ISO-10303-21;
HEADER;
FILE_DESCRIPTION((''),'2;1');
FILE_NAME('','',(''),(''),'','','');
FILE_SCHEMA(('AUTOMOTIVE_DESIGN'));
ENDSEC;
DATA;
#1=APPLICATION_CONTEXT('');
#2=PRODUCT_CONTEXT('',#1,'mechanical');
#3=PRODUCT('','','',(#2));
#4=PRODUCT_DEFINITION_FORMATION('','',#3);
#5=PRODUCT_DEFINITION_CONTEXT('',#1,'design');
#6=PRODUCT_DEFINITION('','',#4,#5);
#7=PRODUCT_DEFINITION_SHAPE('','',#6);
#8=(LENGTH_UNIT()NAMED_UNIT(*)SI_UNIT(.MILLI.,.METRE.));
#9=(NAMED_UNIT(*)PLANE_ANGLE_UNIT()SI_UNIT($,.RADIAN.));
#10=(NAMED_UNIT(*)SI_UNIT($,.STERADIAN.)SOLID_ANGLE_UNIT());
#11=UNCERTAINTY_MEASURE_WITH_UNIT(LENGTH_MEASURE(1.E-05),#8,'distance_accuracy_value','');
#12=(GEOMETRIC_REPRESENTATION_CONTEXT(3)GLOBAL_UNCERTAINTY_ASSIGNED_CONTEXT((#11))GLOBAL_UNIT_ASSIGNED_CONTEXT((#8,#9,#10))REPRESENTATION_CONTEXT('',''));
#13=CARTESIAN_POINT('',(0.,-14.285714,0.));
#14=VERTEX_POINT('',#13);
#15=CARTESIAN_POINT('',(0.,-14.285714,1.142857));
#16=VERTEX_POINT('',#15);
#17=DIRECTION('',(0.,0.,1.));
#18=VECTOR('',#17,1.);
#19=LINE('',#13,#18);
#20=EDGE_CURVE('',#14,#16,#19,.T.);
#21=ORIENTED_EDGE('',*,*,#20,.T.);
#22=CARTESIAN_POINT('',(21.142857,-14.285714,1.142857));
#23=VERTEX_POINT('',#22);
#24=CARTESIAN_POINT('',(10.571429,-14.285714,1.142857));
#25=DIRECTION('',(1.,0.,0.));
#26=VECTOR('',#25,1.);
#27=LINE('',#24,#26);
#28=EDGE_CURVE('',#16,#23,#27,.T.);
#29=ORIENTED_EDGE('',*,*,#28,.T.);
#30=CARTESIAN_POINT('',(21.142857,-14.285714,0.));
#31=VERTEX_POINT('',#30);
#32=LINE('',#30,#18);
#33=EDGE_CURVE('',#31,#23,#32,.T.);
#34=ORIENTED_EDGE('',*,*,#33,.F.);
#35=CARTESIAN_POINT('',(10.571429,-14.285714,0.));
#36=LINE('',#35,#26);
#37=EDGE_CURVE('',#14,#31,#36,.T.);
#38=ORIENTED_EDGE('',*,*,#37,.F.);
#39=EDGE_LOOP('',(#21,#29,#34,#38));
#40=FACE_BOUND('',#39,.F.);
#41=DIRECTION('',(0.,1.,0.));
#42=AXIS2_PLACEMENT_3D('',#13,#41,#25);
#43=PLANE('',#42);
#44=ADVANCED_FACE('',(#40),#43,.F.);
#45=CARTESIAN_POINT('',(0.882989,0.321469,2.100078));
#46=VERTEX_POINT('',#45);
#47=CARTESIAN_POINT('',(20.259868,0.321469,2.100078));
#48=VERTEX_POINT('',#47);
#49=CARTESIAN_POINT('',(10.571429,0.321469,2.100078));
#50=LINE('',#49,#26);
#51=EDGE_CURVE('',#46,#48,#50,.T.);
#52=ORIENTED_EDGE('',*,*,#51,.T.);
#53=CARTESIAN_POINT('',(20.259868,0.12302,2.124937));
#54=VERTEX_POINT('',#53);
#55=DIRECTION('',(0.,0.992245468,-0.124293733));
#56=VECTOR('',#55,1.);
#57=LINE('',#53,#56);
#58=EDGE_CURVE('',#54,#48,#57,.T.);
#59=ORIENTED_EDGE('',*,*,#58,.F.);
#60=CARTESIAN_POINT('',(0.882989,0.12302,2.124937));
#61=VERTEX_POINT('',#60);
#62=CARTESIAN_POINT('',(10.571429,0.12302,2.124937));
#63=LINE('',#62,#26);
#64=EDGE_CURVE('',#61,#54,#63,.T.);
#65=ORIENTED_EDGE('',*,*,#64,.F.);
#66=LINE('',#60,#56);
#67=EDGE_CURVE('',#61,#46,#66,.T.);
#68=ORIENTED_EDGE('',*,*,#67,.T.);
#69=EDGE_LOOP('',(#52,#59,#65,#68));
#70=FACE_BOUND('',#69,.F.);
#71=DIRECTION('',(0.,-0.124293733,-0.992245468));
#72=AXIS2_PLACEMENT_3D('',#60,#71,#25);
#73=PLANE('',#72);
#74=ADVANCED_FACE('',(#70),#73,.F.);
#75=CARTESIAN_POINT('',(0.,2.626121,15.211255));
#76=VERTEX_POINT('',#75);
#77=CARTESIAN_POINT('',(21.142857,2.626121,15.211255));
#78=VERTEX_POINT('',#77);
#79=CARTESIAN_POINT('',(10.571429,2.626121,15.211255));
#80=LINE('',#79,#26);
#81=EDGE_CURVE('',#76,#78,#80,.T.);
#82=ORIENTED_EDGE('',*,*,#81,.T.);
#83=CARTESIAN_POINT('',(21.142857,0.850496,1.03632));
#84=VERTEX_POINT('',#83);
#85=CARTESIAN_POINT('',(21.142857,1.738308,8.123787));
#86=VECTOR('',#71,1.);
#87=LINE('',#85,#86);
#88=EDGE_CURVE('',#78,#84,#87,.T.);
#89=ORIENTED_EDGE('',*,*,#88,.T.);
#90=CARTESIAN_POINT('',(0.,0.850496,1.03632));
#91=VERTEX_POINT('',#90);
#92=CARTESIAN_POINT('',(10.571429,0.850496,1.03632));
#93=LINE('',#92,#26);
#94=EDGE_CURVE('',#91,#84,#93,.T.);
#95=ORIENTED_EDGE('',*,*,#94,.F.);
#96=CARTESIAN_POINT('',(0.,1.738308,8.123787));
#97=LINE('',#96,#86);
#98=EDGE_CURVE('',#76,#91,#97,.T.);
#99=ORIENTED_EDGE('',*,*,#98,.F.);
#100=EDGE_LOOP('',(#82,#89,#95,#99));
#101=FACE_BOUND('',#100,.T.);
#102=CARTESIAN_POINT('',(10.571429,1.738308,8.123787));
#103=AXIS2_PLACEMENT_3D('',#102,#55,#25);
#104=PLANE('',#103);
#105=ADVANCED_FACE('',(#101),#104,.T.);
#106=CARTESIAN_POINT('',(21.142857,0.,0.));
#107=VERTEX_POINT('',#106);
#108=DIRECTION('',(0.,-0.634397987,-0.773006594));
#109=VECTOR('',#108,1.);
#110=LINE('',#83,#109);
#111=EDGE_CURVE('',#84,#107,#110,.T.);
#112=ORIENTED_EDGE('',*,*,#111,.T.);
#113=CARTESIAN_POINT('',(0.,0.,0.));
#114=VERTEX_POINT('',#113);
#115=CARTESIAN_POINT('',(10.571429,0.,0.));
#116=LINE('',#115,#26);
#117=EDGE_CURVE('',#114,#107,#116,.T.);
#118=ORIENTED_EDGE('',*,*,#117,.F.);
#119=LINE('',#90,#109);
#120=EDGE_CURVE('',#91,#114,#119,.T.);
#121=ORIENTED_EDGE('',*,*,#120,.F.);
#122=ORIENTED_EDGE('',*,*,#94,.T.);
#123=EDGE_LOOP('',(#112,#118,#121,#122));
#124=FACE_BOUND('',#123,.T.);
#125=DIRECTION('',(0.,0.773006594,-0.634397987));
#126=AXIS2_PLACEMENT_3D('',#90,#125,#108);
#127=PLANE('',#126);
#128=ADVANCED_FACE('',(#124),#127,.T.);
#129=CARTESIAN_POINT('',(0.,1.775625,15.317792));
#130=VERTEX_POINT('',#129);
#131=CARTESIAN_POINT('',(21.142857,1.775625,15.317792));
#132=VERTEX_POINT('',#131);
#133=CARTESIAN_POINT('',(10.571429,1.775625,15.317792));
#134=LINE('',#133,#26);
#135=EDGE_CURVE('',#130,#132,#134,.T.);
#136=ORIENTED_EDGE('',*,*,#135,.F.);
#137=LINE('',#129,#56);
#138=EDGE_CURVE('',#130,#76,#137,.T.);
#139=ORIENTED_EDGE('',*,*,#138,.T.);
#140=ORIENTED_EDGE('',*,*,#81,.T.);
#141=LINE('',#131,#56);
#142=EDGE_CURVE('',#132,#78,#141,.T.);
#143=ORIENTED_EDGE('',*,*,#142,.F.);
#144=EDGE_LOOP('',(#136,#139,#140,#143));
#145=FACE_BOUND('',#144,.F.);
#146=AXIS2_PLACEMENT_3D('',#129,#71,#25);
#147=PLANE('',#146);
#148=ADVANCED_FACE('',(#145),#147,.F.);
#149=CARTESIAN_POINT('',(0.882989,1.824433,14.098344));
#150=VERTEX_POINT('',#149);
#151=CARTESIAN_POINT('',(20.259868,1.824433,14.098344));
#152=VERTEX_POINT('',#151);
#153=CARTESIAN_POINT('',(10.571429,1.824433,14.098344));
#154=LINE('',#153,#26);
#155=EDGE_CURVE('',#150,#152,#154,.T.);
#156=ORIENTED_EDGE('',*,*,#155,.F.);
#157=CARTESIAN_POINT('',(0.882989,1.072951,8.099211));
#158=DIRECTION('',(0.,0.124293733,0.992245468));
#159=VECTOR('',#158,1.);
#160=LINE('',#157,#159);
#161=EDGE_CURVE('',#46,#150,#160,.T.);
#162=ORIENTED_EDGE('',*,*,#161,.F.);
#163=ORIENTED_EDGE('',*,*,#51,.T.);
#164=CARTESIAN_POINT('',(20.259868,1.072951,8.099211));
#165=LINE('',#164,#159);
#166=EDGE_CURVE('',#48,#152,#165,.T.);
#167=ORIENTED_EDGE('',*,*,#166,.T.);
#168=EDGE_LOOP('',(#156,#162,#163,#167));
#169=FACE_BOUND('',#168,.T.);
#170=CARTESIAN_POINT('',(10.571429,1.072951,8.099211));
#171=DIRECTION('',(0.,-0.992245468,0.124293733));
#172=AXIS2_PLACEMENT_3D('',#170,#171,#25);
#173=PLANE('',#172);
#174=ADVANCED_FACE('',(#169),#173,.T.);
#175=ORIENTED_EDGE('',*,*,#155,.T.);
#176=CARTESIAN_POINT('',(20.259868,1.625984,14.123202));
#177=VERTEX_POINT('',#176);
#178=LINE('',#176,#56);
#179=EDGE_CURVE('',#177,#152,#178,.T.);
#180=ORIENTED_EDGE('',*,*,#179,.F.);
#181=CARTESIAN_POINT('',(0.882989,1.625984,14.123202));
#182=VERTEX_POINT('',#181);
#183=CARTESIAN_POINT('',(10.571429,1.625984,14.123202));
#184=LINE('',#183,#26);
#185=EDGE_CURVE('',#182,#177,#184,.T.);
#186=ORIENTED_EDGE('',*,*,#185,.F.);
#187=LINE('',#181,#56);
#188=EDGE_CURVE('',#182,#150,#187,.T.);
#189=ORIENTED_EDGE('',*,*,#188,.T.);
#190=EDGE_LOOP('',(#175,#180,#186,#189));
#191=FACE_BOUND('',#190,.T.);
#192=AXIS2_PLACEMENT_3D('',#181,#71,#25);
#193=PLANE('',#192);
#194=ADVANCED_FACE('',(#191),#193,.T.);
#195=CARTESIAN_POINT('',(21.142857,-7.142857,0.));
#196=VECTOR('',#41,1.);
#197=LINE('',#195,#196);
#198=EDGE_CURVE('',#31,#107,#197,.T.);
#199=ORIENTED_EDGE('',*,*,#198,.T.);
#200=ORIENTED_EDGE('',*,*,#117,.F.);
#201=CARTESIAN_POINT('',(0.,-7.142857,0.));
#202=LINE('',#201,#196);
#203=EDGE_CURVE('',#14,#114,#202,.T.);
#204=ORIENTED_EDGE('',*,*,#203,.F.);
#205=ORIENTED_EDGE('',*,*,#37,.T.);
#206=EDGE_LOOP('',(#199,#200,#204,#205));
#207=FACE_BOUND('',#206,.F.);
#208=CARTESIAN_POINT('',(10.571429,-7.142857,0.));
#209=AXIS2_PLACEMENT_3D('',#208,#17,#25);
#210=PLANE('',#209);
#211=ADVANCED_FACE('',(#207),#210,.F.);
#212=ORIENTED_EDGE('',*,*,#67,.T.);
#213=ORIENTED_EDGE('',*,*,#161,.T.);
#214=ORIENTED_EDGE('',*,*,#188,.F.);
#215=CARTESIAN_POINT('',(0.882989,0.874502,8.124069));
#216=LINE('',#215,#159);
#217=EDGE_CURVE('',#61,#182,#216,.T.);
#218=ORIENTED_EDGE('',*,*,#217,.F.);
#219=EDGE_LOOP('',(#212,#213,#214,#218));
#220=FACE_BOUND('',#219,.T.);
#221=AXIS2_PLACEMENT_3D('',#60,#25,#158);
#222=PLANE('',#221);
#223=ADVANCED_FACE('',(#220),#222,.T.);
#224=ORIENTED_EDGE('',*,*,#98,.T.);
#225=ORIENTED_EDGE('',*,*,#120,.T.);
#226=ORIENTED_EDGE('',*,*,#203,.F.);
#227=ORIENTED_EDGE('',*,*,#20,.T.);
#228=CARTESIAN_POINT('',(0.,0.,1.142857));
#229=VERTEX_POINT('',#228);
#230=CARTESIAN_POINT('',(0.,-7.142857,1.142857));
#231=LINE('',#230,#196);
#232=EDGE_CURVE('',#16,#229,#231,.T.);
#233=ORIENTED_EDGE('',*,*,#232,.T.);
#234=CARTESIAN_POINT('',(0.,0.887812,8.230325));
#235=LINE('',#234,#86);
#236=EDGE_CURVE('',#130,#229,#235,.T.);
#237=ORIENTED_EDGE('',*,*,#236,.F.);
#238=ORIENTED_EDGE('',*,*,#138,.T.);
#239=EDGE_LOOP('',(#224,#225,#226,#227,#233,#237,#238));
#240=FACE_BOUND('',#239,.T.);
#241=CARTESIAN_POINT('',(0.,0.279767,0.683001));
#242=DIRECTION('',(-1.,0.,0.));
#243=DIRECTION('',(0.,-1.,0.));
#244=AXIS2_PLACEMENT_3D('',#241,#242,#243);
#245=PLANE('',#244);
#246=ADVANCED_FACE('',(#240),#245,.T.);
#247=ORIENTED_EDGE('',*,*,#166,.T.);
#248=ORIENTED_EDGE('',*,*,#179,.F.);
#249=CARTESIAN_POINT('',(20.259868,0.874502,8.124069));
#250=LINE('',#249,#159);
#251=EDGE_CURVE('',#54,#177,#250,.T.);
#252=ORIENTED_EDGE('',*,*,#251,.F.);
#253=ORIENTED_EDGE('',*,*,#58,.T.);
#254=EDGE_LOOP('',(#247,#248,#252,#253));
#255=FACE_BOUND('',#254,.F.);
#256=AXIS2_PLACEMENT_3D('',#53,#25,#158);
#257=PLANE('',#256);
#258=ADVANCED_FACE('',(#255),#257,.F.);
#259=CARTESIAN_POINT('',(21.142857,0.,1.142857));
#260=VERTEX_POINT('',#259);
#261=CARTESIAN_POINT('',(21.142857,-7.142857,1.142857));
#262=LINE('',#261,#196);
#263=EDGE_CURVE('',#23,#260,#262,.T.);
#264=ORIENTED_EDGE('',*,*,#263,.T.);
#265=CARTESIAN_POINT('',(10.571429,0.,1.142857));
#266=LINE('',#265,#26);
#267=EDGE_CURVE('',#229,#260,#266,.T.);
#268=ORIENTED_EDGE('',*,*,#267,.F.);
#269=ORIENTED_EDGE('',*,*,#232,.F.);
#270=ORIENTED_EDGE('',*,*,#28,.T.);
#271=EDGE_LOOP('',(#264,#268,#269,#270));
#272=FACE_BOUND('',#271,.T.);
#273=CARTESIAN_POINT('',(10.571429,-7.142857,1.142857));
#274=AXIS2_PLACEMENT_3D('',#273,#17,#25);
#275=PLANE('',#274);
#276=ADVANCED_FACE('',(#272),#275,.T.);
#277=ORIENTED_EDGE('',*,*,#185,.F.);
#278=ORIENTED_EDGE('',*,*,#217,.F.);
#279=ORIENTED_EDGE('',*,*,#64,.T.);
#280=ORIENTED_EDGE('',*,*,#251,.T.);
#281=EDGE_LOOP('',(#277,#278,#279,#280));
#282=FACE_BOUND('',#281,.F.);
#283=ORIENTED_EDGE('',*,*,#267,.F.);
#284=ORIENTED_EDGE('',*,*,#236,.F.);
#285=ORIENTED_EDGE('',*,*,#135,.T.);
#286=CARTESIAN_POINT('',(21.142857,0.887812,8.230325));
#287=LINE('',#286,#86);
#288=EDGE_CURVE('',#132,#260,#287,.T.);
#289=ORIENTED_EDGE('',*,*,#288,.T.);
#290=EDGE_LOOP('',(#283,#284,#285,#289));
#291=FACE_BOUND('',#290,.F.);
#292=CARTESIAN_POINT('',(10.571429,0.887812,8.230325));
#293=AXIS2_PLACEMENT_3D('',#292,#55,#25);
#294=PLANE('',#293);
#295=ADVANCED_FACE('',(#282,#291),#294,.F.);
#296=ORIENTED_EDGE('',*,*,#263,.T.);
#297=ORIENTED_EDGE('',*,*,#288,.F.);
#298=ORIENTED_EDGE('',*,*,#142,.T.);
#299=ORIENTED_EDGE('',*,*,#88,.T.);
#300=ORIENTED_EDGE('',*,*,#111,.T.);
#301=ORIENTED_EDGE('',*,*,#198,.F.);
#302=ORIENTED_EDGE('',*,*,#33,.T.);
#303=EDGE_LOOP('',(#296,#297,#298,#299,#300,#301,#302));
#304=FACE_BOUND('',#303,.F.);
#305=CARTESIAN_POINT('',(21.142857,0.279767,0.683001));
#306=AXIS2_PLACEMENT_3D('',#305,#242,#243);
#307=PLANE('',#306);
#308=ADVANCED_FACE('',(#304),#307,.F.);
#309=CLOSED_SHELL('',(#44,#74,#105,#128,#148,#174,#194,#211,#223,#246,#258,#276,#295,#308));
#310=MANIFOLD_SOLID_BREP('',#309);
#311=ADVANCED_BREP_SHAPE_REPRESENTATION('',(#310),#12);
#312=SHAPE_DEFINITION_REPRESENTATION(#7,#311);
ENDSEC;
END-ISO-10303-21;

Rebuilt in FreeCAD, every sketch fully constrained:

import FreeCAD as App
import Part
import Sketcher
from FreeCAD import Vector

doc = App.newDocument("Part")
body = doc.addObject("PartDesign::Body", "Body")

sketch1 = body.newObject("Sketcher::SketchObject", "Sketch")
sketch1.AttachmentSupport = (doc.getObject("XY_Plane"), [""])
sketch1.MapMode = "FlatFace"
sketch1.addGeometry([
    Part.LineSegment(Vector(0, 0, 0), Vector(0, -14.285714, 0)),
    Part.LineSegment(Vector(0, -14.285714, 0), Vector(21.142857, -14.285714, 0)),
    Part.LineSegment(Vector(21.142857, -14.285714, 0), Vector(21.142857, 0, 0)),
    Part.LineSegment(Vector(21.142857, 0, 0), Vector(0, 0, 0)),
], False)
sketch1.addConstraint([
    Sketcher.Constraint("Coincident", 0, 2, 1, 1),
    Sketcher.Constraint("Coincident", 1, 2, 2, 1),
    Sketcher.Constraint("Coincident", 2, 2, 3, 1),
    Sketcher.Constraint("Coincident", 3, 2, 0, 1),
    Sketcher.Constraint("Vertical", 0),
    Sketcher.Constraint("Horizontal", 1),
    Sketcher.Constraint("Vertical", 2),
    Sketcher.Constraint("Horizontal", 3),
    Sketcher.Constraint("Coincident", 3, 2, -1, 1),
    Sketcher.Constraint("DistanceX", 1, 1, 1, 2, 21.142857),
    Sketcher.Constraint("DistanceY", 0, 2, 0, 1, 14.285714),
])
pad1 = body.newObject("PartDesign::Pad", "Pad")
pad1.Profile = sketch1
pad1.Length = 1.142857
body2 = doc.addObject("PartDesign::Body", "Body001")

sketch2 = body2.newObject("Sketcher::SketchObject", "Sketch001")
sketch2.AttachmentSupport = (doc.getObject("XY_Plane001"), [""])
sketch2.MapMode = "FlatFace"
sketch2.AttachmentOffset = App.Placement(Vector(0, 0, 1.142857), App.Rotation())
sketch2.addGeometry([
    Part.LineSegment(Vector(0, 0, 0), Vector(0, -14.285714, 0)),
    Part.LineSegment(Vector(0, -14.285714, 0), Vector(21.142857, -14.285714, 0)),
    Part.LineSegment(Vector(21.142857, -14.285714, 0), Vector(21.142857, 0, 0)),
    Part.LineSegment(Vector(21.142857, 0, 0), Vector(0, 0, 0)),
], False)
sketch2.addConstraint([
    Sketcher.Constraint("Coincident", 0, 2, 1, 1),
    Sketcher.Constraint("Coincident", 1, 2, 2, 1),
    Sketcher.Constraint("Coincident", 2, 2, 3, 1),
    Sketcher.Constraint("Coincident", 3, 2, 0, 1),
    Sketcher.Constraint("Vertical", 0),
    Sketcher.Constraint("Horizontal", 1),
    Sketcher.Constraint("Vertical", 2),
    Sketcher.Constraint("Horizontal", 3),
    Sketcher.Constraint("Coincident", 3, 2, -1, 1),
    Sketcher.Constraint("DistanceX", 1, 1, 1, 2, 21.142857),
    Sketcher.Constraint("DistanceY", 0, 2, 0, 1, 14.285714),
])
pad2 = body2.newObject("PartDesign::Pad", "Pad001")
pad2.Profile = sketch2
pad2.Length = 0.857143
body3 = doc.addObject("PartDesign::Body", "Body002")
doc.recompute()

body2.Placement = App.Placement(Vector(0, -1.133995, 1.284907), App.Rotation(Vector(1, 0, 0), 262.860028))
boolean = body3.newObject("PartDesign::Boolean", "Boolean")
boolean.Type = "Fuse"
boolean.addObjects([body2])
body.AllowCompound = True
doc.recompute()

boolean2 = body.newObject("PartDesign::Boolean", "Boolean001")
boolean2.Type = "Fuse"
boolean2.addObjects([body3])

sketch3 = body.newObject("Sketcher::SketchObject", "Sketch002")
sketch3.AttachmentSupport = (doc.getObject("YZ_Plane"), [""])
sketch3.MapMode = "FlatFace"
sketch3.addGeometry([
    Part.LineSegment(Vector(0.850496, 1.03632, 0), Vector(0, 0, 0)),
    Part.LineSegment(Vector(0, 0, 0), Vector(0, 1.142857, 0)),
    Part.LineSegment(Vector(0, 1.142857, 0), Vector(0.850496, 1.03632, 0)),
], False)
sketch3.addConstraint([
    Sketcher.Constraint("Coincident", 0, 2, 1, 1),
    Sketcher.Constraint("Coincident", 1, 2, 2, 1),
    Sketcher.Constraint("Coincident", 2, 2, 0, 1),
    Sketcher.Constraint("Vertical", 1),
    Sketcher.Constraint("Coincident", 0, 2, -1, 1),
    Sketcher.Constraint("DistanceY", 1, 1, 1, 2, 1.142857),
    Sketcher.Constraint("DistanceY", -1, 1, 2, 2, 1.03632),
    Sketcher.Constraint("Distance", 0, 1.340635),
])
pad3 = body.newObject("PartDesign::Pad", "Pad002")
pad3.Profile = sketch3
pad3.Length = 21.142857

sketch4 = body.newObject("Sketcher::SketchObject", "Sketch003")
sketch4.Placement = App.Placement(Vector(0, -0.140948, 0.017656), App.Rotation(Vector(1, 0, 0), Vector(0, 0.124293733, 0.992245468), Vector(0, -0.992245468, 0.124293733), "ZXY"))
sketch4.addGeometry([
    Part.LineSegment(Vector(0.882989, 14.215783, 0), Vector(0.882989, 2.123749, 0)),
    Part.LineSegment(Vector(0.882989, 2.123749, 0), Vector(20.259868, 2.123749, 0)),
    Part.LineSegment(Vector(20.259868, 2.123749, 0), Vector(20.259868, 14.215783, 0)),
    Part.LineSegment(Vector(20.259868, 14.215783, 0), Vector(0.882989, 14.215783, 0)),
], False)
sketch4.addConstraint([
    Sketcher.Constraint("Coincident", 0, 2, 1, 1),
    Sketcher.Constraint("Coincident", 1, 2, 2, 1),
    Sketcher.Constraint("Coincident", 2, 2, 3, 1),
    Sketcher.Constraint("Coincident", 3, 2, 0, 1),
    Sketcher.Constraint("Vertical", 0),
    Sketcher.Constraint("Horizontal", 1),
    Sketcher.Constraint("Vertical", 2),
    Sketcher.Constraint("Horizontal", 3),
    Sketcher.Constraint("DistanceX", 1, 1, 1, 2, 19.376879),
    Sketcher.Constraint("DistanceY", 0, 2, 0, 1, 12.092034),
    Sketcher.Constraint("DistanceX", -1, 1, 0, 2, 0.882989),
    Sketcher.Constraint("DistanceY", -1, 1, 0, 2, 2.123749),
])
pocket1 = body.newObject("PartDesign::Pocket", "Pocket")
pocket1.Profile = sketch4
pocket1.Length = 0.2

doc.recompute()
